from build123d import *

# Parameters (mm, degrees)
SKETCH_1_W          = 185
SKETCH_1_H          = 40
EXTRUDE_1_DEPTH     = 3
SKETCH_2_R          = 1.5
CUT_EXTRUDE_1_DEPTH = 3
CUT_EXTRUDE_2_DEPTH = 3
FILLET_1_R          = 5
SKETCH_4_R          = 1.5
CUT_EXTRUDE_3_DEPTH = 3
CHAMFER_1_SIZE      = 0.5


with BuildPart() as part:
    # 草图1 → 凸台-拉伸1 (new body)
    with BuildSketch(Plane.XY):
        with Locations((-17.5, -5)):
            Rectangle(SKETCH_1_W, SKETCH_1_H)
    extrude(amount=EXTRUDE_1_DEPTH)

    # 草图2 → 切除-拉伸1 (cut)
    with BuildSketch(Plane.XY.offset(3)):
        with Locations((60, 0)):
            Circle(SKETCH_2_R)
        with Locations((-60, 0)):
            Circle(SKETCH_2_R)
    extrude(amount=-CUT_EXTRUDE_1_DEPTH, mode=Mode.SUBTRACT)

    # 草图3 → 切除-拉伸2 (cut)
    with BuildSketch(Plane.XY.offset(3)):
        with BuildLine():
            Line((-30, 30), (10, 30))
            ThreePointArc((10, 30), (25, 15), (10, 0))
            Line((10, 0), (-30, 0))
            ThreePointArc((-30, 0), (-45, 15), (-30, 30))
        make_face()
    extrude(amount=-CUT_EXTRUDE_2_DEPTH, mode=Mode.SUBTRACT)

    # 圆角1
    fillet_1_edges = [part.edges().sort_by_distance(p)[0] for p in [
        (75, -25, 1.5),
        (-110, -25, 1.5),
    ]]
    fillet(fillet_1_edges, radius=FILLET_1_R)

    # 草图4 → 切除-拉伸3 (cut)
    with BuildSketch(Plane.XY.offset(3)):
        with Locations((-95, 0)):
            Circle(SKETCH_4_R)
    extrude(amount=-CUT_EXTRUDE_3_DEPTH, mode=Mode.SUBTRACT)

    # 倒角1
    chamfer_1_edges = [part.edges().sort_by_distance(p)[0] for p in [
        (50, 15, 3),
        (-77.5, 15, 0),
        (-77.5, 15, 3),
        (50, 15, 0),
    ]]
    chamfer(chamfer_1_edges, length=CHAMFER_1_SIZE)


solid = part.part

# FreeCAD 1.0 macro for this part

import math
import FreeCAD as App
import Part
import Sketcher
Q = App.Units.Quantity


def edges_at(feature, points):
    """Names of the edges that pass closest to the given points."""
    edges = feature.Shape.Edges
    near = lambda p: min(range(len(edges)), key=lambda i: edges[i].distToShape(Part.Vertex(*p))[0])
    return sorted({f"Edge{near(p) + 1}" for p in points})

doc = App.newDocument("Part")
body = doc.addObject("PartDesign::Body", "Body")

# Sketch on XY plane
sketch1 = body.newObject("Sketcher::SketchObject", "Sketch")
sketch1.AttachmentSupport = (doc.getObject("XY_Plane"), [""])
sketch1.MapMode = "FlatFace"
sketch1.addGeometry([
    Part.LineSegment(App.Vector(-110, 15, 0), App.Vector(-110, -25, 0)),
    Part.LineSegment(App.Vector(-110, -25, 0), App.Vector(75, -25, 0)),
    Part.LineSegment(App.Vector(75, -25, 0), App.Vector(75, 15, 0)),
    Part.LineSegment(App.Vector(75, 15, 0), App.Vector(-110, 15, 0)),
], False)
sketch1.addConstraint([
    Sketcher.Constraint("Coincident", 0, 2, 1, 1),
    Sketcher.Constraint("Coincident", 1, 2, 2, 1),
    Sketcher.Constraint("Coincident", 2, 2, 3, 1),
    Sketcher.Constraint("Coincident", 3, 2, 0, 1),
    Sketcher.Constraint("Vertical", 0),
    Sketcher.Constraint("Horizontal", 1),
    Sketcher.Constraint("Vertical", 2),
    Sketcher.Constraint("Horizontal", 3),
    Sketcher.Constraint("DistanceX", 1, 1, 1, 2, Q("185 mm")),
    Sketcher.Constraint("DistanceY", 0, 2, 0, 1, Q("40 mm")),
    Sketcher.Constraint("DistanceX", 0, 2, -1, 1, Q("110 mm")),
    Sketcher.Constraint("DistanceY", 0, 2, -1, 1, Q("25 mm")),
])
pad1 = body.newObject("PartDesign::Pad", "Pad")
pad1.Profile = sketch1
pad1.Length = 3

# Sketch on XY plane
sketch2 = body.newObject("Sketcher::SketchObject", "Sketch001")
sketch2.AttachmentSupport = (doc.getObject("XY_Plane"), [""])
sketch2.MapMode = "FlatFace"
sketch2.AttachmentOffset = App.Placement(App.Vector(0, 0, 3), App.Rotation())
sketch2.addGeometry([
    Part.Circle(App.Vector(60, 0, 0), App.Vector(0, 0, 1), 1.5),
    Part.Circle(App.Vector(-60, 0, 0), App.Vector(0, 0, 1), 1.5),
], False)
sketch2.addConstraint([
    Sketcher.Constraint("Equal", 0, 1),
    Sketcher.Constraint("Symmetric", 0, 3, 1, 3, -1, 1),
    Sketcher.Constraint("PointOnObject", 0, 3, -1),
    Sketcher.Constraint("Diameter", 0, Q("3 mm")),
    Sketcher.Constraint("DistanceX", -1, 1, 0, 3, Q("60 mm")),
])
pocket1 = body.newObject("PartDesign::Pocket", "Pocket")
pocket1.Profile = sketch2
pocket1.Length = 3

# Sketch on XY plane
sketch3 = body.newObject("Sketcher::SketchObject", "Sketch002")
sketch3.AttachmentSupport = (doc.getObject("XY_Plane"), [""])
sketch3.MapMode = "FlatFace"
sketch3.AttachmentOffset = App.Placement(App.Vector(0, 0, 3), App.Rotation())
sketch3.addGeometry([
    Part.LineSegment(App.Vector(10, 30, 0), App.Vector(-30, 30, 0)),
    Part.ArcOfCircle(Part.Circle(App.Vector(-30, 15, 0), App.Vector(0, 0, 1), 15), math.radians(90), math.radians(270)),
    Part.LineSegment(App.Vector(-30, 0, 0), App.Vector(10, 0, 0)),
    Part.ArcOfCircle(Part.Circle(App.Vector(10, 15, 0), App.Vector(0, 0, 1), 15), math.radians(-90), math.radians(90)),
], False)
sketch3.addConstraint([
    Sketcher.Constraint("Tangent", 0, 2, 1, 1),
    Sketcher.Constraint("Tangent", 1, 2, 2, 1),
    Sketcher.Constraint("Tangent", 2, 2, 3, 1),
    Sketcher.Constraint("Tangent", 3, 2, 0, 1),
    Sketcher.Constraint("Horizontal", 0),
    Sketcher.Constraint("Horizontal", 2),
    Sketcher.Constraint("PointOnObject", 1, 2, -1),
    Sketcher.Constraint("Radius", 1, Q("15 mm")),
    Sketcher.Constraint("DistanceX", 0, 2, 0, 1, Q("40 mm")),
    Sketcher.Constraint("DistanceX", 1, 3, -1, 1, Q("30 mm")),
])
pocket2 = body.newObject("PartDesign::Pocket", "Pocket001")
pocket2.Profile = sketch3
pocket2.Length = 3
doc.recompute()

fillet = body.newObject("PartDesign::Fillet", "Fillet")
fillet.Base = (pocket2, edges_at(pocket2, [(75, -25, 1.5), (-110, -25, 1.5)]))
fillet.Radius = 5

# Sketch on XY plane
sketch4 = body.newObject("Sketcher::SketchObject", "Sketch003")
sketch4.AttachmentSupport = (doc.getObject("XY_Plane"), [""])
sketch4.MapMode = "FlatFace"
sketch4.AttachmentOffset = App.Placement(App.Vector(0, 0, 3), App.Rotation())
sketch4.addGeometry(Part.Circle(App.Vector(-95, 0, 0), App.Vector(0, 0, 1), 1.5), False)
sketch4.addConstraint([
    Sketcher.Constraint("PointOnObject", 0, 3, -1),
    Sketcher.Constraint("Diameter", 0, Q("3 mm")),
    Sketcher.Constraint("DistanceX", 0, 3, -1, 1, Q("95 mm")),
])
pocket3 = body.newObject("PartDesign::Pocket", "Pocket002")
pocket3.Profile = sketch4
pocket3.Length = 3
doc.recompute()

chamfer = body.newObject("PartDesign::Chamfer", "Chamfer")
chamfer.Base = (pocket3, edges_at(pocket3, [
    (50, 15, 3),
    (-77.5, 15, 0),
    (-77.5, 15, 3),
    (50, 15, 0),
]))
chamfer.Size = 0.5

doc.recompute()
